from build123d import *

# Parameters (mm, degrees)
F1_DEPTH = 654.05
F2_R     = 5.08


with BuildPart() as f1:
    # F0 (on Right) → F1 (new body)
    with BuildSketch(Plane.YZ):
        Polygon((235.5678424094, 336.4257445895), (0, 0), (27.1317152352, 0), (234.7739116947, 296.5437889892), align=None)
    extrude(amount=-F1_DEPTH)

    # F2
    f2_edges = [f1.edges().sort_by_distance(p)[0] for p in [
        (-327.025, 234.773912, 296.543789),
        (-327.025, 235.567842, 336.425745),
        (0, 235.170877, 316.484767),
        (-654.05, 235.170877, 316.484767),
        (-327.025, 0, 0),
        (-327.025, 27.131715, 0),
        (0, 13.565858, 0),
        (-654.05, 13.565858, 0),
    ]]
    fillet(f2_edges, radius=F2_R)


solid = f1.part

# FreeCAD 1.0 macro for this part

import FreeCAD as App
import Part
import Sketcher
Q = App.Units.Quantity


def edges_at(feature, points):
    """Names of the edges that pass closest to the given points."""
    edges = feature.Shape.Edges
    near = lambda p: min(range(len(edges)), key=lambda i: edges[i].distToShape(Part.Vertex(*p))[0])
    return sorted({f"Edge{near(p) + 1}" for p in points})

doc = App.newDocument("Part")
body = doc.addObject("PartDesign::Body", "Body")

sketch1 = doc.addObject("Sketcher::SketchObject", "Sketch")
body.addObject(sketch1)
sketch1.AttachmentSupport = (doc.YZ_Plane, [""])
sketch1.MapMode = "FlatFace"
sketch1.addGeometry([
    Part.LineSegment(App.Vector(236, 336, 0), App.Vector(0, 0, 0)),
    Part.LineSegment(App.Vector(0, 0, 0), App.Vector(27, 0, 0)),
    Part.LineSegment(App.Vector(27, 0, 0), App.Vector(235, 297, 0)),
    Part.LineSegment(App.Vector(235, 297, 0), App.Vector(236, 336, 0)),
], False)
sketch1.addConstraint([
    Sketcher.Constraint("Coincident", 0, 2, 1, 1),
    Sketcher.Constraint("Coincident", 1, 2, 2, 1),
    Sketcher.Constraint("Coincident", 2, 2, 3, 1),
    Sketcher.Constraint("Coincident", 3, 2, 0, 1),
    Sketcher.Constraint("Horizontal", 1),
    Sketcher.Constraint("Coincident", 0, 2, -1, 1),
    Sketcher.Constraint("Parallel", 0, 2),
    Sketcher.Constraint("Angle", 0, Q("-125 deg")),
    Sketcher.Constraint("Distance", 0, 410.7),
    Sketcher.Constraint("DistanceX", 1, 1, 1, 2, 27.131715),
    Sketcher.Constraint("DistanceX", -1, 1, 2, 2, 234.773912),
])
pad1 = doc.addObject("PartDesign::Pad", "Pad")
body.addObject(pad1)
pad1.Profile = sketch1
pad1.Length = Q("25.75 in")
pad1.Reversed = True
doc.recompute()

fillet = doc.addObject("PartDesign::Fillet", "Fillet")
body.addObject(fillet)
fillet.Base = (pad1, edges_at(pad1, [
    (-327.025, 234.774, 296.544),
    (-327.025, 235.568, 336.426),
    (0, 235.171, 316.485),
    (-654.05, 235.171, 316.485),
    (-327.025, 0, 0),
    (-327.025, 27.132, 0),
    (0, 13.566, 0),
    (-654.05, 13.566, 0),
]))
fillet.Radius = Q("0.2 in")

doc.recompute()
